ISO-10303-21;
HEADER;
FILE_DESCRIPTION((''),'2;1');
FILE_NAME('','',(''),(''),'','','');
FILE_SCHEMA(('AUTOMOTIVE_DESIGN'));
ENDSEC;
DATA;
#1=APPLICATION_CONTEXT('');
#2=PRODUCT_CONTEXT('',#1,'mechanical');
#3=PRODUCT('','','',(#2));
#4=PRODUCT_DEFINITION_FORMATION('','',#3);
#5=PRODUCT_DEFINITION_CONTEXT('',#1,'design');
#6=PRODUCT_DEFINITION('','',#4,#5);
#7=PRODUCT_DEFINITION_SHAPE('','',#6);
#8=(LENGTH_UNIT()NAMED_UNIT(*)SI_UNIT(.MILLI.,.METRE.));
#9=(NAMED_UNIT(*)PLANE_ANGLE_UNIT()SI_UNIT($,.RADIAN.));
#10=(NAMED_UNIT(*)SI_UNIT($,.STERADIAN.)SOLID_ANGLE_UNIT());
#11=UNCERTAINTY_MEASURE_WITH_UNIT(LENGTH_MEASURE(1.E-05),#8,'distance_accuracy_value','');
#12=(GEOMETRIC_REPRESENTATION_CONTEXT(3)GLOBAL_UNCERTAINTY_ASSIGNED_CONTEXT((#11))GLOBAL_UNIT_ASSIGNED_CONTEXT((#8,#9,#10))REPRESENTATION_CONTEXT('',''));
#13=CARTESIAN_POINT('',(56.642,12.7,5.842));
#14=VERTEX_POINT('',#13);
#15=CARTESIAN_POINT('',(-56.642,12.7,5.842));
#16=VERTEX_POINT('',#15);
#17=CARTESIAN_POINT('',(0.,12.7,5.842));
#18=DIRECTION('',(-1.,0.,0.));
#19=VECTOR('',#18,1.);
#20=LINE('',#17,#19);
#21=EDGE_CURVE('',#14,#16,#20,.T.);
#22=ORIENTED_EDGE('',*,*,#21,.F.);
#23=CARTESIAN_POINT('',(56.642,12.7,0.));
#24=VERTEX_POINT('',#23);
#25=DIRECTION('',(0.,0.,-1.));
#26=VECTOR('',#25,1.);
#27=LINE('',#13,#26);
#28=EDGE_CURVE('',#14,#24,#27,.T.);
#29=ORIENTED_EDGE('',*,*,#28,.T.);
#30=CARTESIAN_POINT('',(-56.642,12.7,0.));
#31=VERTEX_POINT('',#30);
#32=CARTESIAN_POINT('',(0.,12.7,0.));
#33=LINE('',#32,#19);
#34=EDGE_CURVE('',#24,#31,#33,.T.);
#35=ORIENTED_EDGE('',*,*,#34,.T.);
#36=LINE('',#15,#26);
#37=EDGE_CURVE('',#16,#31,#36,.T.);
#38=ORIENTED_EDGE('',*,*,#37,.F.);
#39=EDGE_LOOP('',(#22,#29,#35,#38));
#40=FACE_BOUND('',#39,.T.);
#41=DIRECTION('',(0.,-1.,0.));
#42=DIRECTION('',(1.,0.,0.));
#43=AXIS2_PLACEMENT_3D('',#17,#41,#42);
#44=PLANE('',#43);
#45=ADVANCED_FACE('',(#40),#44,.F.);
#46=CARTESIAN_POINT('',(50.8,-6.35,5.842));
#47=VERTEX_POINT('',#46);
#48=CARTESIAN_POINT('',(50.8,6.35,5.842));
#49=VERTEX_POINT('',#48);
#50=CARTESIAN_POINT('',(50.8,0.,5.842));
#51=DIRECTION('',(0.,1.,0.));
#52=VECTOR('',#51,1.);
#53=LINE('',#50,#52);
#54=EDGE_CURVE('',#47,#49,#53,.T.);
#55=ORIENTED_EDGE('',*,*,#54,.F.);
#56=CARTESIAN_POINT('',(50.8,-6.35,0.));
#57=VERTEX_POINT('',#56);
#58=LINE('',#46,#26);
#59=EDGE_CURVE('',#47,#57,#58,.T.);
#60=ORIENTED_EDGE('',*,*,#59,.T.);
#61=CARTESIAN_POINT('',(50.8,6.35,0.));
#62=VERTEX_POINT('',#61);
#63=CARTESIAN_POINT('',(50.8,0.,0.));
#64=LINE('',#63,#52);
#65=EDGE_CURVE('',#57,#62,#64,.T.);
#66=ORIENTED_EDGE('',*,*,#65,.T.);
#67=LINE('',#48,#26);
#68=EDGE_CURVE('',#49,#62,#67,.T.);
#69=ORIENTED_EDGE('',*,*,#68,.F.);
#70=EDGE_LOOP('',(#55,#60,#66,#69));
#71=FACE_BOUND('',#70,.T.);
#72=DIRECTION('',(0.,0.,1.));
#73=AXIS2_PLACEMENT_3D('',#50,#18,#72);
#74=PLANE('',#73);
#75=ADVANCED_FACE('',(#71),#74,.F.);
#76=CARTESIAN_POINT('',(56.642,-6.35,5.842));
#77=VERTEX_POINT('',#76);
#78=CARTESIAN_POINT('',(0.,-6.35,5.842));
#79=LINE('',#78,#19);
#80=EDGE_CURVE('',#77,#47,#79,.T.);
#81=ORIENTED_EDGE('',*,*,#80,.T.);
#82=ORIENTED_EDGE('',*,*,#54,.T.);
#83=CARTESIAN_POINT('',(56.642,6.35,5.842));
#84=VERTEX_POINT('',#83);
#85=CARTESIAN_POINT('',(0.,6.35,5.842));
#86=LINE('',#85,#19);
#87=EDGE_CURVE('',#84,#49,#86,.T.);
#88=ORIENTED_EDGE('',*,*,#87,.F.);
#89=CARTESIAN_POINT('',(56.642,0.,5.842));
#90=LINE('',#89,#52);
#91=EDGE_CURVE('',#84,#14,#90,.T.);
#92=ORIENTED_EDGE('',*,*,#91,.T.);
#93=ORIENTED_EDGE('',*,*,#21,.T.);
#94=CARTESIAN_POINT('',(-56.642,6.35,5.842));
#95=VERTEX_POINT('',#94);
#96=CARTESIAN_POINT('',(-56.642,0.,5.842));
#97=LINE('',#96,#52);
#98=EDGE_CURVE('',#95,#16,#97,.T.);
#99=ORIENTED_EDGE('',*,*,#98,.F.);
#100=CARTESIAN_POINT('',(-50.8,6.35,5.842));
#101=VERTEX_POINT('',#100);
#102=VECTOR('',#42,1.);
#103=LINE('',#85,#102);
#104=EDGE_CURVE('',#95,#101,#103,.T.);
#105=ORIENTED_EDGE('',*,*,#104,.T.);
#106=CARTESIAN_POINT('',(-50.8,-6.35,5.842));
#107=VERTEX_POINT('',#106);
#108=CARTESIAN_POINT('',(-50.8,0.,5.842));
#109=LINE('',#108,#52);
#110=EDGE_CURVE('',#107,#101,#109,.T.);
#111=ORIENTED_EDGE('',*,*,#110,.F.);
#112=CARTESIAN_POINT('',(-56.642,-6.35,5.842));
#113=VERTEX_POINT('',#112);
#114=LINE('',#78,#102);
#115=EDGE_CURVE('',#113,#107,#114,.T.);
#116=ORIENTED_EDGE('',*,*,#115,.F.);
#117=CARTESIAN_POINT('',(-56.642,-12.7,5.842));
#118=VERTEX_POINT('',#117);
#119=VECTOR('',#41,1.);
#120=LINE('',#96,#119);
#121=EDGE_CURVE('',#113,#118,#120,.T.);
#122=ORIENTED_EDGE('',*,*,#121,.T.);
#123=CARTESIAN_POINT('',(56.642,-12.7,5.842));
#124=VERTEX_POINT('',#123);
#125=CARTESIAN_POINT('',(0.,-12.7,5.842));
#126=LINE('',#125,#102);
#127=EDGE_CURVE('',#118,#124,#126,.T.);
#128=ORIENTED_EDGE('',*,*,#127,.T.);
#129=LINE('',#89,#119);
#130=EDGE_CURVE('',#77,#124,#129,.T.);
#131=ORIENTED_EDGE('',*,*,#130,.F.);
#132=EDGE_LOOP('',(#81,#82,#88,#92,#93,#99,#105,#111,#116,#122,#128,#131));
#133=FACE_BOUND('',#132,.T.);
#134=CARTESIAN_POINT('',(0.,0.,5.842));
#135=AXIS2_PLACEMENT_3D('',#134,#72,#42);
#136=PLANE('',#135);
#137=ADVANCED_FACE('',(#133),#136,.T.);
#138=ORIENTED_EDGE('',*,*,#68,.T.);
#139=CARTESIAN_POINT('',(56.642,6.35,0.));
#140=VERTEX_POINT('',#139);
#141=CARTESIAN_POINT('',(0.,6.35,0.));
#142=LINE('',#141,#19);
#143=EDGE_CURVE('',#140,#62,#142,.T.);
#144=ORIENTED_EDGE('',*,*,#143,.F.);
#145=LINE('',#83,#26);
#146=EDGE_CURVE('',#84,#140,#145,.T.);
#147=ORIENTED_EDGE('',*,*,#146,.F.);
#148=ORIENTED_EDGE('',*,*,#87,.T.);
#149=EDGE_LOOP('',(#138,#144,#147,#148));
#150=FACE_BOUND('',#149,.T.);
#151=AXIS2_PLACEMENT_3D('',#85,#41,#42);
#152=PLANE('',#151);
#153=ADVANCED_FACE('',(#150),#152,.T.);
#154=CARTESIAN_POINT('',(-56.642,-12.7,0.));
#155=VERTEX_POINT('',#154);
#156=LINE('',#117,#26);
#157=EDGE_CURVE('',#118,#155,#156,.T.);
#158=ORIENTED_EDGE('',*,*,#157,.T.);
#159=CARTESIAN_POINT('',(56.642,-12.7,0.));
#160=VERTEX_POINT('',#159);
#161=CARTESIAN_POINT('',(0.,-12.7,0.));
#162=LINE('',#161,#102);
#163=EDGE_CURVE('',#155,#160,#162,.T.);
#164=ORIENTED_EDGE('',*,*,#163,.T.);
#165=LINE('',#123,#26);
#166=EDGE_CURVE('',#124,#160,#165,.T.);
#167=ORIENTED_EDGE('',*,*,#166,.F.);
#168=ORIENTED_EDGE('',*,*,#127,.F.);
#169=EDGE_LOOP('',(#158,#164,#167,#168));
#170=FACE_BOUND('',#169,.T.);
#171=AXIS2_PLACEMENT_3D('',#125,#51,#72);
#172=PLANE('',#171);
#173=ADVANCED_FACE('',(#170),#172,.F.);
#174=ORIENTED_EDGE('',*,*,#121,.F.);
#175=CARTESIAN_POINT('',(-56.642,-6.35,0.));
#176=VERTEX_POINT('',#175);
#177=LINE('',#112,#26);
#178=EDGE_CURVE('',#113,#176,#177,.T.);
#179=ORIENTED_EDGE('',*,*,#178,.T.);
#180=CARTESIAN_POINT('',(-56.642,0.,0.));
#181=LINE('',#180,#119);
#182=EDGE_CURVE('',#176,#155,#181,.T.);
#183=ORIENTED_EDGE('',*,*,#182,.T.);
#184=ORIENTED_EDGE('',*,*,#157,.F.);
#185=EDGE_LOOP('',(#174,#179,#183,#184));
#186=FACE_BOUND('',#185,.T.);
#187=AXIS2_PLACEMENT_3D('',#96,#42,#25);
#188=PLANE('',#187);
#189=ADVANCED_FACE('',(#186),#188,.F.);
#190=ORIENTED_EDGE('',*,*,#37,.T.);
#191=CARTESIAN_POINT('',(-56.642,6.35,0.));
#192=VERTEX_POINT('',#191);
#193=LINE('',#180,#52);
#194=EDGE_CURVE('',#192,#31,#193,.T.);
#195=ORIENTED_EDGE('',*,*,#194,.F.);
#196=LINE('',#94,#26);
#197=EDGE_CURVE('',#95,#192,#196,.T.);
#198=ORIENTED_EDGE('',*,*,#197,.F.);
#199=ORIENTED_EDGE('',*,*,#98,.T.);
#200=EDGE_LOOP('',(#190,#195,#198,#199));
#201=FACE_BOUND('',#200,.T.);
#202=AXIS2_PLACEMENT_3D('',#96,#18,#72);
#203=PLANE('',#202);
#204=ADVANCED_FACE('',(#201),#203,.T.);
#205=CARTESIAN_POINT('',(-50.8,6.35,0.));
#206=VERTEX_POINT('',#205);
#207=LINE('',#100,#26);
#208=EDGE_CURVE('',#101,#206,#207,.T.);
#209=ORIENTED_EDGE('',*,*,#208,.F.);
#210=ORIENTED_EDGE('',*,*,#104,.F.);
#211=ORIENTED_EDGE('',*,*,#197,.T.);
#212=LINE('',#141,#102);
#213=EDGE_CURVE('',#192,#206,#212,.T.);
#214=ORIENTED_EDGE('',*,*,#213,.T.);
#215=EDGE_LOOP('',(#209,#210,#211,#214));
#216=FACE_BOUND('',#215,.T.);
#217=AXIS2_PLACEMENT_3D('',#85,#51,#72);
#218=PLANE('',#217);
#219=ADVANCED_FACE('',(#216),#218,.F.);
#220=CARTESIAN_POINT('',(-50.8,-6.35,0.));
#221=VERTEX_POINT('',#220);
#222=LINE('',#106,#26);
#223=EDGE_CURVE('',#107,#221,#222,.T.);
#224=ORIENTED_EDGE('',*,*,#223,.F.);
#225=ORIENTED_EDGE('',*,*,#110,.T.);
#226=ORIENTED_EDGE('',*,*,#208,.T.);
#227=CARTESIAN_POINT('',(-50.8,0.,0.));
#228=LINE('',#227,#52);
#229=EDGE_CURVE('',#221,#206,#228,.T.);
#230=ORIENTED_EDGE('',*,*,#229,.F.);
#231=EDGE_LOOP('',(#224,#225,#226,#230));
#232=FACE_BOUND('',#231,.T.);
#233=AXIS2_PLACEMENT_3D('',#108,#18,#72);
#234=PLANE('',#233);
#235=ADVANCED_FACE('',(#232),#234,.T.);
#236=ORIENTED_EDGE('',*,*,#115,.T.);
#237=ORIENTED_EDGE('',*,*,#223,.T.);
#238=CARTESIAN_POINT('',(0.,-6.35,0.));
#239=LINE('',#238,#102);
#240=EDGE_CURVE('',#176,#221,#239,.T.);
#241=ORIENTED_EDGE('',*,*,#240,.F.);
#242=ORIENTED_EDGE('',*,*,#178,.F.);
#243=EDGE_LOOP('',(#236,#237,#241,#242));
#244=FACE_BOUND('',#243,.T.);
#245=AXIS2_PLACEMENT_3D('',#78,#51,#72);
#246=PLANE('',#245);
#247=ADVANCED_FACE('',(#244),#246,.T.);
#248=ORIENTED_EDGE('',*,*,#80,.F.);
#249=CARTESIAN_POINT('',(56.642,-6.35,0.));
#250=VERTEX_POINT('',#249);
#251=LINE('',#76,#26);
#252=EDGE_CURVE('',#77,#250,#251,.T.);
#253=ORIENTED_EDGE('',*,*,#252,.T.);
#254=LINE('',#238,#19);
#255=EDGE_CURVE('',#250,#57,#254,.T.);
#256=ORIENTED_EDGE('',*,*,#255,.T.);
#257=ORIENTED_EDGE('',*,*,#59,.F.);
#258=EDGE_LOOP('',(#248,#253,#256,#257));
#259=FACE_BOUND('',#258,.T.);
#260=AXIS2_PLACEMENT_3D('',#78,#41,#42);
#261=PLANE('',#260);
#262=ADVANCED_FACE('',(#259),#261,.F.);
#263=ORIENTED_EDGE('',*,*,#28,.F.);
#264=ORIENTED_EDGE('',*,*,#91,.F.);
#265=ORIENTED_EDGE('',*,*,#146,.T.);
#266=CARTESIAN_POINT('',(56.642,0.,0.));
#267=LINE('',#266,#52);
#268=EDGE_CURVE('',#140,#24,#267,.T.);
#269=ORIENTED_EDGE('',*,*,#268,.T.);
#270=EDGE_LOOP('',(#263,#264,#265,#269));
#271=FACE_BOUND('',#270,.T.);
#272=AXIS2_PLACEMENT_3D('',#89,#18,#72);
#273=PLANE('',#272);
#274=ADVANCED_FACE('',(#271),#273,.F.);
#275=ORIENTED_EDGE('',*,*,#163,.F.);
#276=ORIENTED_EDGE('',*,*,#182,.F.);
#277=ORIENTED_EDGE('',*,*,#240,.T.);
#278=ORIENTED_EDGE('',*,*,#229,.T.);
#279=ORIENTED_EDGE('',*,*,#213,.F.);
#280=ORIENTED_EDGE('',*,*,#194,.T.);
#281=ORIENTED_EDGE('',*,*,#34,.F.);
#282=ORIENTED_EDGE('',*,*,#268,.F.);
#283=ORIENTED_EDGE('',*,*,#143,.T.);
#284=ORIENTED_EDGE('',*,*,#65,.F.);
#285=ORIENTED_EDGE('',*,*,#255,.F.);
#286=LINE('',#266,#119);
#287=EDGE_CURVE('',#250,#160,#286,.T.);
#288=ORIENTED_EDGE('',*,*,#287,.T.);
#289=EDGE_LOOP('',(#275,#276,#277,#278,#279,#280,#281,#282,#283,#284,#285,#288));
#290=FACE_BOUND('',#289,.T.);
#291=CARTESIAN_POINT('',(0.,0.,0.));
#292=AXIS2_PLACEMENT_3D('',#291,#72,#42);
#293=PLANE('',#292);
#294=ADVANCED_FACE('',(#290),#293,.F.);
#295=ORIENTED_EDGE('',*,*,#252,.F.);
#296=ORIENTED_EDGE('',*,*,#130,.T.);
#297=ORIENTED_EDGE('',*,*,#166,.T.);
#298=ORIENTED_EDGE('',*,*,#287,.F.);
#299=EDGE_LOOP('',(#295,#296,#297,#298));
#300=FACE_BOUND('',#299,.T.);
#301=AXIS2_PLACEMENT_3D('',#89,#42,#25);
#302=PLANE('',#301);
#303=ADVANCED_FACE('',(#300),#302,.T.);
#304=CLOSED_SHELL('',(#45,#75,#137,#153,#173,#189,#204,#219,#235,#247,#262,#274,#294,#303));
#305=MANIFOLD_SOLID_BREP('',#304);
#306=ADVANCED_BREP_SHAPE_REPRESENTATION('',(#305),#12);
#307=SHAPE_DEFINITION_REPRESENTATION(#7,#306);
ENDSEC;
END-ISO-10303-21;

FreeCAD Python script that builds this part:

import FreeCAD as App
import Part
import Sketcher
from FreeCAD import Vector
Q = App.Units.Quantity


def add_polygon(sketch, points):
    """Adds a closed chain of lines whose ends are joined by coincident constraints."""
    first, n = sketch.GeometryCount, len(points)
    for a, b in zip(points, points[1:] + points[:1]):
        sketch.addGeometry(Part.LineSegment(App.Vector(*a, 0), App.Vector(*b, 0)), False)
    for i in range(n):
        sketch.addConstraint(Sketcher.Constraint("Coincident", first + i, 2, first + (i + 1) % n, 1))

doc = App.newDocument("Part")
body = doc.addObject("PartDesign::Body", "Body")

# Sketch on XY plane
sketch1 = doc.addObject("Sketcher::SketchObject", "Sketch")
body.addObject(sketch1)
sketch1.AttachmentSupport = (doc.XY_Plane, [""])
sketch1.MapMode = "FlatFace"
add_polygon(sketch1, [(50.8, 6.35), (56.642, 6.35), (56.642, 12.7), (-56.642, 12.7), (-56.642, 6.35), (-50.8, 6.35), (-50.8, -6.35), (-56.642, -6.35), (-56.642, -12.7), (56.642, -12.7), (56.642, -6.35), (50.8, -6.35)])  # lines 0-11
sketch1.addConstraint([
    Sketcher.Constraint("Horizontal", 0),
    Sketcher.Constraint("Vertical", 1),
    Sketcher.Constraint("Horizontal", 2),
    Sketcher.Constraint("Vertical", 3),
    Sketcher.Constraint("Horizontal", 4),
    Sketcher.Constraint("Vertical", 5),
    Sketcher.Constraint("Horizontal", 6),
    Sketcher.Constraint("Vertical", 7),
    Sketcher.Constraint("Horizontal", 8),
    Sketcher.Constraint("Vertical", 9),
    Sketcher.Constraint("Horizontal", 10),
    Sketcher.Constraint("Vertical", 11),
    Sketcher.Constraint("Symmetric", 0, 2, 6, 2, -1, 1),
    Sketcher.Constraint("Symmetric", 2, 2, 8, 2, -1, 1),
    Sketcher.Constraint("Symmetric", 4, 2, 10, 2, -1, 1),
    Sketcher.Constraint("Symmetric", 0, 2, 3, 2, -2),
    Sketcher.Constraint("DistanceY", 5, 2, 5, 1, Q("0.5 in")),
    Sketcher.Constraint("DistanceX", 4, 2, -1, 1, Q("2 in")),
    Sketcher.Constraint("DistanceY", 7, 2, 2, 2, Q("1 in")),
    Sketcher.Constraint("DistanceX", 0, 1, 0, 2, Q("0.23 in")),
])
pad1 = doc.addObject("PartDesign::Pad", "Pad")
body.addObject(pad1)
pad1.Profile = sketch1
pad1.Length = Q("0.23 in")

doc.recompute()
